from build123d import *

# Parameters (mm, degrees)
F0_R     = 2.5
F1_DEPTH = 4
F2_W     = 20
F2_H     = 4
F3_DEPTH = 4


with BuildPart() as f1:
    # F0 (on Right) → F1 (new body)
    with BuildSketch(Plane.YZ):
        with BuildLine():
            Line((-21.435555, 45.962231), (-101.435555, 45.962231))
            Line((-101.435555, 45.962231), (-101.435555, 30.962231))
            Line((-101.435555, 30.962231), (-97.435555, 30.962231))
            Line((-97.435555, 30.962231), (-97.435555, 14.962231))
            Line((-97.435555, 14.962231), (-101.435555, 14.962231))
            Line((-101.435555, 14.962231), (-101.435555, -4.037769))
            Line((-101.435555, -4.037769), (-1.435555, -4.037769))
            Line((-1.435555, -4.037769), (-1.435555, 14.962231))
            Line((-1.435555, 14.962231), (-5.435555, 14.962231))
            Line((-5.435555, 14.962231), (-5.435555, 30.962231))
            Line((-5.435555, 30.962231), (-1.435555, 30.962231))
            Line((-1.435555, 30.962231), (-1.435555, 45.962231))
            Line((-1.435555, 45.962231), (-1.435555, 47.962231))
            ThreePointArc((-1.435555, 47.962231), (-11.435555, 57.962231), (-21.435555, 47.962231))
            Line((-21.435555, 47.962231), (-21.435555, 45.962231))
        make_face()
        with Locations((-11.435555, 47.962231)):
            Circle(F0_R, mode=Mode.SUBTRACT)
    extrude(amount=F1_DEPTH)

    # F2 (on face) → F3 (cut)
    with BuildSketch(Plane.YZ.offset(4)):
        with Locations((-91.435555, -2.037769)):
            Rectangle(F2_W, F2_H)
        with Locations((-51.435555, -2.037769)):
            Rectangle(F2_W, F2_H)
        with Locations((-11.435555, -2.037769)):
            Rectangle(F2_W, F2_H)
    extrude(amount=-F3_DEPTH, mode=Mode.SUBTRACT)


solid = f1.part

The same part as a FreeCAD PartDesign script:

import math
import FreeCAD as App
import Part
import Sketcher

V = App.Vector


def add_polygon(sketch, points):
    """Adds a closed chain of lines whose ends are joined by coincident constraints."""
    first, n = sketch.GeometryCount, len(points)
    for a, b in zip(points, points[1:] + points[:1]):
        sketch.addGeometry(Part.LineSegment(App.Vector(*a, 0), App.Vector(*b, 0)), False)
    for i in range(n):
        sketch.addConstraint(Sketcher.Constraint("Coincident", first + i, 2, first + (i + 1) % n, 1))

doc = App.newDocument("Part")
body = doc.addObject("PartDesign::Body", "Body")

# Sketch on YZ plane
sketch1 = body.newObject("Sketcher::SketchObject", "Sketch")
sketch1.AttachmentSupport = (doc.getObject("YZ_Plane"), [""])
sketch1.MapMode = "FlatFace"
sketch1.addGeometry([
    Part.LineSegment(V(-21.435555, 45.962231, 0), V(-101.435555, 45.962231, 0)),  # 0
    Part.LineSegment(V(-101.435555, 45.962231, 0), V(-101.435555, 30.962231, 0)),  # 1
    Part.LineSegment(V(-101.435555, 30.962231, 0), V(-97.435555, 30.962231, 0)),  # 2
    Part.LineSegment(V(-97.435555, 30.962231, 0), V(-97.435555, 14.962231, 0)),  # 3
    Part.LineSegment(V(-97.435555, 14.962231, 0), V(-101.435555, 14.962231, 0)),  # 4
    Part.LineSegment(V(-101.435555, 14.962231, 0), V(-101.435555, -4.037769, 0)),  # 5
    Part.LineSegment(V(-101.435555, -4.037769, 0), V(-1.435555, -4.037769, 0)),  # 6
    Part.LineSegment(V(-1.435555, -4.037769, 0), V(-1.435555, 14.962231, 0)),  # 7
    Part.LineSegment(V(-1.435555, 14.962231, 0), V(-5.435555, 14.962231, 0)),  # 8
    Part.LineSegment(V(-5.435555, 14.962231, 0), V(-5.435555, 30.962231, 0)),  # 9
    Part.LineSegment(V(-5.435555, 30.962231, 0), V(-1.435555, 30.962231, 0)),  # 10
    Part.LineSegment(V(-1.435555, 30.962231, 0), V(-1.435555, 47.962231, 0)),  # 11
    Part.ArcOfCircle(Part.Circle(V(-11.435555, 47.962231, 0), V(0, 0, 1), 10), math.radians(0), math.radians(180)),  # 12
    Part.LineSegment(V(-21.435555, 47.962231, 0), V(-21.435555, 45.962231, 0)),  # 13
    Part.Circle(V(-11.435555, 47.962231, 0), V(0, 0, 1), 2.5),  # 14
], False)
sketch1.addConstraint([
    Sketcher.Constraint("Coincident", 0, 2, 1, 1),
    Sketcher.Constraint("Coincident", 1, 2, 2, 1),
    Sketcher.Constraint("Coincident", 2, 2, 3, 1),
    Sketcher.Constraint("Coincident", 3, 2, 4, 1),
    Sketcher.Constraint("Coincident", 4, 2, 5, 1),
    Sketcher.Constraint("Coincident", 5, 2, 6, 1),
    Sketcher.Constraint("Coincident", 6, 2, 7, 1),
    Sketcher.Constraint("Coincident", 7, 2, 8, 1),
    Sketcher.Constraint("Coincident", 8, 2, 9, 1),
    Sketcher.Constraint("Coincident", 9, 2, 10, 1),
    Sketcher.Constraint("Coincident", 10, 2, 11, 1),
    Sketcher.Constraint("Tangent", 11, 2, 12, 1),
    Sketcher.Constraint("Tangent", 12, 2, 13, 1),
    Sketcher.Constraint("Coincident", 13, 2, 0, 1),
    Sketcher.Constraint("Horizontal", 0),
    Sketcher.Constraint("Vertical", 1),
    Sketcher.Constraint("Horizontal", 2),
    Sketcher.Constraint("Vertical", 3),
    Sketcher.Constraint("Horizontal", 4),
    Sketcher.Constraint("Vertical", 5),
    Sketcher.Constraint("Horizontal", 6),
    Sketcher.Constraint("Vertical", 7),
    Sketcher.Constraint("Horizontal", 8),
    Sketcher.Constraint("Vertical", 9),
    Sketcher.Constraint("Horizontal", 10),
    Sketcher.Constraint("Vertical", 11),
    Sketcher.Constraint("Vertical", 13),
    Sketcher.Constraint("Coincident", 14, 3, 12, 3),
    Sketcher.Constraint("Horizontal", 4, 2, 7, 2),
    Sketcher.Constraint("Horizontal", 2, 2, 9, 2),
    Sketcher.Constraint("Vertical", 1, 2, 4, 2),
    Sketcher.Constraint("Vertical", 7, 2, 10, 2),
    Sketcher.Constraint("Equal", 4, 8),
    Sketcher.Constraint("Diameter", 14, 5.0),
    Sketcher.Constraint("Radius", 12, 10.0),
    Sketcher.Constraint("DistanceX", 0, 2, 0, 1, 80.0),
    Sketcher.Constraint("DistanceX", 2, 1, 2, 2, 4.0),
    Sketcher.Constraint("DistanceY", 1, 2, 1, 1, 15.0),
    Sketcher.Constraint("DistanceY", 3, 2, 3, 1, 16.0),
    Sketcher.Constraint("DistanceY", 5, 2, 5, 1, 19.0),
    Sketcher.Constraint("DistanceY", 11, 1, 11, 2, 17.0),
    Sketcher.Constraint("DistanceY", -1, 1, 12, 3, 47.962231),
    Sketcher.Constraint("DistanceX", 12, 3, -1, 1, 11.435555),
])
pad1 = body.newObject("PartDesign::Pad", "Pad")
pad1.Profile = sketch1
pad1.Length = 4

# Sketch on YZ plane
sketch2 = body.newObject("Sketcher::SketchObject", "Sketch001")
sketch2.AttachmentSupport = (doc.getObject("YZ_Plane"), [""])
sketch2.MapMode = "FlatFace"
sketch2.AttachmentOffset = App.Placement(V(0, 0, 4), App.Rotation())
add_polygon(sketch2, [(-101.435555, -0.037769), (-101.435555, -4.037769), (-81.435555, -4.037769), (-81.435555, -0.037769)])  # lines 0-3
add_polygon(sketch2, [(-61.435555, -0.037769), (-61.435555, -4.037769), (-41.435555, -4.037769), (-41.435555, -0.037769)])  # lines 4-7
add_polygon(sketch2, [(-21.435555, -0.037769), (-21.435555, -4.037769), (-1.435555, -4.037769), (-1.435555, -0.037769)])  # lines 8-11
sketch2.addConstraint([
    Sketcher.Constraint("Vertical", 0),
    Sketcher.Constraint("Horizontal", 1),
    Sketcher.Constraint("Vertical", 2),
    Sketcher.Constraint("Horizontal", 3),
    Sketcher.Constraint("Vertical", 4),
    Sketcher.Constraint("Horizontal", 5),
    Sketcher.Constraint("Vertical", 6),
    Sketcher.Constraint("Horizontal", 7),
    Sketcher.Constraint("Vertical", 8),
    Sketcher.Constraint("Horizontal", 9),
    Sketcher.Constraint("Vertical", 10),
    Sketcher.Constraint("Horizontal", 11),
    Sketcher.Constraint("Horizontal", 1, 2, 4, 2),
    Sketcher.Constraint("Horizontal", 3, 2, 6, 2),
    Sketcher.Constraint("Horizontal", 5, 2, 8, 2),
    Sketcher.Constraint("Horizontal", 7, 2, 10, 2),
    Sketcher.Constraint("Equal", 3, 5),
    Sketcher.Constraint("Equal", 7, 9),
    Sketcher.Constraint("DistanceX", 1, 1, 1, 2, 20.0),
    Sketcher.Constraint("DistanceY", 0, 2, 0, 1, 4.0),
    Sketcher.Constraint("DistanceX", 1, 2, 4, 2, 20.0),
    Sketcher.Constraint("DistanceX", 5, 2, 8, 2, 20.0),
    Sketcher.Constraint("DistanceY", 0, 2, -1, 1, 4.037769),
    Sketcher.Constraint("DistanceX", 0, 2, -1, 1, 101.435555),
])
pocket1 = body.newObject("PartDesign::Pocket", "Pocket")
pocket1.Profile = sketch2
pocket1.Length = 4

doc.recompute()
